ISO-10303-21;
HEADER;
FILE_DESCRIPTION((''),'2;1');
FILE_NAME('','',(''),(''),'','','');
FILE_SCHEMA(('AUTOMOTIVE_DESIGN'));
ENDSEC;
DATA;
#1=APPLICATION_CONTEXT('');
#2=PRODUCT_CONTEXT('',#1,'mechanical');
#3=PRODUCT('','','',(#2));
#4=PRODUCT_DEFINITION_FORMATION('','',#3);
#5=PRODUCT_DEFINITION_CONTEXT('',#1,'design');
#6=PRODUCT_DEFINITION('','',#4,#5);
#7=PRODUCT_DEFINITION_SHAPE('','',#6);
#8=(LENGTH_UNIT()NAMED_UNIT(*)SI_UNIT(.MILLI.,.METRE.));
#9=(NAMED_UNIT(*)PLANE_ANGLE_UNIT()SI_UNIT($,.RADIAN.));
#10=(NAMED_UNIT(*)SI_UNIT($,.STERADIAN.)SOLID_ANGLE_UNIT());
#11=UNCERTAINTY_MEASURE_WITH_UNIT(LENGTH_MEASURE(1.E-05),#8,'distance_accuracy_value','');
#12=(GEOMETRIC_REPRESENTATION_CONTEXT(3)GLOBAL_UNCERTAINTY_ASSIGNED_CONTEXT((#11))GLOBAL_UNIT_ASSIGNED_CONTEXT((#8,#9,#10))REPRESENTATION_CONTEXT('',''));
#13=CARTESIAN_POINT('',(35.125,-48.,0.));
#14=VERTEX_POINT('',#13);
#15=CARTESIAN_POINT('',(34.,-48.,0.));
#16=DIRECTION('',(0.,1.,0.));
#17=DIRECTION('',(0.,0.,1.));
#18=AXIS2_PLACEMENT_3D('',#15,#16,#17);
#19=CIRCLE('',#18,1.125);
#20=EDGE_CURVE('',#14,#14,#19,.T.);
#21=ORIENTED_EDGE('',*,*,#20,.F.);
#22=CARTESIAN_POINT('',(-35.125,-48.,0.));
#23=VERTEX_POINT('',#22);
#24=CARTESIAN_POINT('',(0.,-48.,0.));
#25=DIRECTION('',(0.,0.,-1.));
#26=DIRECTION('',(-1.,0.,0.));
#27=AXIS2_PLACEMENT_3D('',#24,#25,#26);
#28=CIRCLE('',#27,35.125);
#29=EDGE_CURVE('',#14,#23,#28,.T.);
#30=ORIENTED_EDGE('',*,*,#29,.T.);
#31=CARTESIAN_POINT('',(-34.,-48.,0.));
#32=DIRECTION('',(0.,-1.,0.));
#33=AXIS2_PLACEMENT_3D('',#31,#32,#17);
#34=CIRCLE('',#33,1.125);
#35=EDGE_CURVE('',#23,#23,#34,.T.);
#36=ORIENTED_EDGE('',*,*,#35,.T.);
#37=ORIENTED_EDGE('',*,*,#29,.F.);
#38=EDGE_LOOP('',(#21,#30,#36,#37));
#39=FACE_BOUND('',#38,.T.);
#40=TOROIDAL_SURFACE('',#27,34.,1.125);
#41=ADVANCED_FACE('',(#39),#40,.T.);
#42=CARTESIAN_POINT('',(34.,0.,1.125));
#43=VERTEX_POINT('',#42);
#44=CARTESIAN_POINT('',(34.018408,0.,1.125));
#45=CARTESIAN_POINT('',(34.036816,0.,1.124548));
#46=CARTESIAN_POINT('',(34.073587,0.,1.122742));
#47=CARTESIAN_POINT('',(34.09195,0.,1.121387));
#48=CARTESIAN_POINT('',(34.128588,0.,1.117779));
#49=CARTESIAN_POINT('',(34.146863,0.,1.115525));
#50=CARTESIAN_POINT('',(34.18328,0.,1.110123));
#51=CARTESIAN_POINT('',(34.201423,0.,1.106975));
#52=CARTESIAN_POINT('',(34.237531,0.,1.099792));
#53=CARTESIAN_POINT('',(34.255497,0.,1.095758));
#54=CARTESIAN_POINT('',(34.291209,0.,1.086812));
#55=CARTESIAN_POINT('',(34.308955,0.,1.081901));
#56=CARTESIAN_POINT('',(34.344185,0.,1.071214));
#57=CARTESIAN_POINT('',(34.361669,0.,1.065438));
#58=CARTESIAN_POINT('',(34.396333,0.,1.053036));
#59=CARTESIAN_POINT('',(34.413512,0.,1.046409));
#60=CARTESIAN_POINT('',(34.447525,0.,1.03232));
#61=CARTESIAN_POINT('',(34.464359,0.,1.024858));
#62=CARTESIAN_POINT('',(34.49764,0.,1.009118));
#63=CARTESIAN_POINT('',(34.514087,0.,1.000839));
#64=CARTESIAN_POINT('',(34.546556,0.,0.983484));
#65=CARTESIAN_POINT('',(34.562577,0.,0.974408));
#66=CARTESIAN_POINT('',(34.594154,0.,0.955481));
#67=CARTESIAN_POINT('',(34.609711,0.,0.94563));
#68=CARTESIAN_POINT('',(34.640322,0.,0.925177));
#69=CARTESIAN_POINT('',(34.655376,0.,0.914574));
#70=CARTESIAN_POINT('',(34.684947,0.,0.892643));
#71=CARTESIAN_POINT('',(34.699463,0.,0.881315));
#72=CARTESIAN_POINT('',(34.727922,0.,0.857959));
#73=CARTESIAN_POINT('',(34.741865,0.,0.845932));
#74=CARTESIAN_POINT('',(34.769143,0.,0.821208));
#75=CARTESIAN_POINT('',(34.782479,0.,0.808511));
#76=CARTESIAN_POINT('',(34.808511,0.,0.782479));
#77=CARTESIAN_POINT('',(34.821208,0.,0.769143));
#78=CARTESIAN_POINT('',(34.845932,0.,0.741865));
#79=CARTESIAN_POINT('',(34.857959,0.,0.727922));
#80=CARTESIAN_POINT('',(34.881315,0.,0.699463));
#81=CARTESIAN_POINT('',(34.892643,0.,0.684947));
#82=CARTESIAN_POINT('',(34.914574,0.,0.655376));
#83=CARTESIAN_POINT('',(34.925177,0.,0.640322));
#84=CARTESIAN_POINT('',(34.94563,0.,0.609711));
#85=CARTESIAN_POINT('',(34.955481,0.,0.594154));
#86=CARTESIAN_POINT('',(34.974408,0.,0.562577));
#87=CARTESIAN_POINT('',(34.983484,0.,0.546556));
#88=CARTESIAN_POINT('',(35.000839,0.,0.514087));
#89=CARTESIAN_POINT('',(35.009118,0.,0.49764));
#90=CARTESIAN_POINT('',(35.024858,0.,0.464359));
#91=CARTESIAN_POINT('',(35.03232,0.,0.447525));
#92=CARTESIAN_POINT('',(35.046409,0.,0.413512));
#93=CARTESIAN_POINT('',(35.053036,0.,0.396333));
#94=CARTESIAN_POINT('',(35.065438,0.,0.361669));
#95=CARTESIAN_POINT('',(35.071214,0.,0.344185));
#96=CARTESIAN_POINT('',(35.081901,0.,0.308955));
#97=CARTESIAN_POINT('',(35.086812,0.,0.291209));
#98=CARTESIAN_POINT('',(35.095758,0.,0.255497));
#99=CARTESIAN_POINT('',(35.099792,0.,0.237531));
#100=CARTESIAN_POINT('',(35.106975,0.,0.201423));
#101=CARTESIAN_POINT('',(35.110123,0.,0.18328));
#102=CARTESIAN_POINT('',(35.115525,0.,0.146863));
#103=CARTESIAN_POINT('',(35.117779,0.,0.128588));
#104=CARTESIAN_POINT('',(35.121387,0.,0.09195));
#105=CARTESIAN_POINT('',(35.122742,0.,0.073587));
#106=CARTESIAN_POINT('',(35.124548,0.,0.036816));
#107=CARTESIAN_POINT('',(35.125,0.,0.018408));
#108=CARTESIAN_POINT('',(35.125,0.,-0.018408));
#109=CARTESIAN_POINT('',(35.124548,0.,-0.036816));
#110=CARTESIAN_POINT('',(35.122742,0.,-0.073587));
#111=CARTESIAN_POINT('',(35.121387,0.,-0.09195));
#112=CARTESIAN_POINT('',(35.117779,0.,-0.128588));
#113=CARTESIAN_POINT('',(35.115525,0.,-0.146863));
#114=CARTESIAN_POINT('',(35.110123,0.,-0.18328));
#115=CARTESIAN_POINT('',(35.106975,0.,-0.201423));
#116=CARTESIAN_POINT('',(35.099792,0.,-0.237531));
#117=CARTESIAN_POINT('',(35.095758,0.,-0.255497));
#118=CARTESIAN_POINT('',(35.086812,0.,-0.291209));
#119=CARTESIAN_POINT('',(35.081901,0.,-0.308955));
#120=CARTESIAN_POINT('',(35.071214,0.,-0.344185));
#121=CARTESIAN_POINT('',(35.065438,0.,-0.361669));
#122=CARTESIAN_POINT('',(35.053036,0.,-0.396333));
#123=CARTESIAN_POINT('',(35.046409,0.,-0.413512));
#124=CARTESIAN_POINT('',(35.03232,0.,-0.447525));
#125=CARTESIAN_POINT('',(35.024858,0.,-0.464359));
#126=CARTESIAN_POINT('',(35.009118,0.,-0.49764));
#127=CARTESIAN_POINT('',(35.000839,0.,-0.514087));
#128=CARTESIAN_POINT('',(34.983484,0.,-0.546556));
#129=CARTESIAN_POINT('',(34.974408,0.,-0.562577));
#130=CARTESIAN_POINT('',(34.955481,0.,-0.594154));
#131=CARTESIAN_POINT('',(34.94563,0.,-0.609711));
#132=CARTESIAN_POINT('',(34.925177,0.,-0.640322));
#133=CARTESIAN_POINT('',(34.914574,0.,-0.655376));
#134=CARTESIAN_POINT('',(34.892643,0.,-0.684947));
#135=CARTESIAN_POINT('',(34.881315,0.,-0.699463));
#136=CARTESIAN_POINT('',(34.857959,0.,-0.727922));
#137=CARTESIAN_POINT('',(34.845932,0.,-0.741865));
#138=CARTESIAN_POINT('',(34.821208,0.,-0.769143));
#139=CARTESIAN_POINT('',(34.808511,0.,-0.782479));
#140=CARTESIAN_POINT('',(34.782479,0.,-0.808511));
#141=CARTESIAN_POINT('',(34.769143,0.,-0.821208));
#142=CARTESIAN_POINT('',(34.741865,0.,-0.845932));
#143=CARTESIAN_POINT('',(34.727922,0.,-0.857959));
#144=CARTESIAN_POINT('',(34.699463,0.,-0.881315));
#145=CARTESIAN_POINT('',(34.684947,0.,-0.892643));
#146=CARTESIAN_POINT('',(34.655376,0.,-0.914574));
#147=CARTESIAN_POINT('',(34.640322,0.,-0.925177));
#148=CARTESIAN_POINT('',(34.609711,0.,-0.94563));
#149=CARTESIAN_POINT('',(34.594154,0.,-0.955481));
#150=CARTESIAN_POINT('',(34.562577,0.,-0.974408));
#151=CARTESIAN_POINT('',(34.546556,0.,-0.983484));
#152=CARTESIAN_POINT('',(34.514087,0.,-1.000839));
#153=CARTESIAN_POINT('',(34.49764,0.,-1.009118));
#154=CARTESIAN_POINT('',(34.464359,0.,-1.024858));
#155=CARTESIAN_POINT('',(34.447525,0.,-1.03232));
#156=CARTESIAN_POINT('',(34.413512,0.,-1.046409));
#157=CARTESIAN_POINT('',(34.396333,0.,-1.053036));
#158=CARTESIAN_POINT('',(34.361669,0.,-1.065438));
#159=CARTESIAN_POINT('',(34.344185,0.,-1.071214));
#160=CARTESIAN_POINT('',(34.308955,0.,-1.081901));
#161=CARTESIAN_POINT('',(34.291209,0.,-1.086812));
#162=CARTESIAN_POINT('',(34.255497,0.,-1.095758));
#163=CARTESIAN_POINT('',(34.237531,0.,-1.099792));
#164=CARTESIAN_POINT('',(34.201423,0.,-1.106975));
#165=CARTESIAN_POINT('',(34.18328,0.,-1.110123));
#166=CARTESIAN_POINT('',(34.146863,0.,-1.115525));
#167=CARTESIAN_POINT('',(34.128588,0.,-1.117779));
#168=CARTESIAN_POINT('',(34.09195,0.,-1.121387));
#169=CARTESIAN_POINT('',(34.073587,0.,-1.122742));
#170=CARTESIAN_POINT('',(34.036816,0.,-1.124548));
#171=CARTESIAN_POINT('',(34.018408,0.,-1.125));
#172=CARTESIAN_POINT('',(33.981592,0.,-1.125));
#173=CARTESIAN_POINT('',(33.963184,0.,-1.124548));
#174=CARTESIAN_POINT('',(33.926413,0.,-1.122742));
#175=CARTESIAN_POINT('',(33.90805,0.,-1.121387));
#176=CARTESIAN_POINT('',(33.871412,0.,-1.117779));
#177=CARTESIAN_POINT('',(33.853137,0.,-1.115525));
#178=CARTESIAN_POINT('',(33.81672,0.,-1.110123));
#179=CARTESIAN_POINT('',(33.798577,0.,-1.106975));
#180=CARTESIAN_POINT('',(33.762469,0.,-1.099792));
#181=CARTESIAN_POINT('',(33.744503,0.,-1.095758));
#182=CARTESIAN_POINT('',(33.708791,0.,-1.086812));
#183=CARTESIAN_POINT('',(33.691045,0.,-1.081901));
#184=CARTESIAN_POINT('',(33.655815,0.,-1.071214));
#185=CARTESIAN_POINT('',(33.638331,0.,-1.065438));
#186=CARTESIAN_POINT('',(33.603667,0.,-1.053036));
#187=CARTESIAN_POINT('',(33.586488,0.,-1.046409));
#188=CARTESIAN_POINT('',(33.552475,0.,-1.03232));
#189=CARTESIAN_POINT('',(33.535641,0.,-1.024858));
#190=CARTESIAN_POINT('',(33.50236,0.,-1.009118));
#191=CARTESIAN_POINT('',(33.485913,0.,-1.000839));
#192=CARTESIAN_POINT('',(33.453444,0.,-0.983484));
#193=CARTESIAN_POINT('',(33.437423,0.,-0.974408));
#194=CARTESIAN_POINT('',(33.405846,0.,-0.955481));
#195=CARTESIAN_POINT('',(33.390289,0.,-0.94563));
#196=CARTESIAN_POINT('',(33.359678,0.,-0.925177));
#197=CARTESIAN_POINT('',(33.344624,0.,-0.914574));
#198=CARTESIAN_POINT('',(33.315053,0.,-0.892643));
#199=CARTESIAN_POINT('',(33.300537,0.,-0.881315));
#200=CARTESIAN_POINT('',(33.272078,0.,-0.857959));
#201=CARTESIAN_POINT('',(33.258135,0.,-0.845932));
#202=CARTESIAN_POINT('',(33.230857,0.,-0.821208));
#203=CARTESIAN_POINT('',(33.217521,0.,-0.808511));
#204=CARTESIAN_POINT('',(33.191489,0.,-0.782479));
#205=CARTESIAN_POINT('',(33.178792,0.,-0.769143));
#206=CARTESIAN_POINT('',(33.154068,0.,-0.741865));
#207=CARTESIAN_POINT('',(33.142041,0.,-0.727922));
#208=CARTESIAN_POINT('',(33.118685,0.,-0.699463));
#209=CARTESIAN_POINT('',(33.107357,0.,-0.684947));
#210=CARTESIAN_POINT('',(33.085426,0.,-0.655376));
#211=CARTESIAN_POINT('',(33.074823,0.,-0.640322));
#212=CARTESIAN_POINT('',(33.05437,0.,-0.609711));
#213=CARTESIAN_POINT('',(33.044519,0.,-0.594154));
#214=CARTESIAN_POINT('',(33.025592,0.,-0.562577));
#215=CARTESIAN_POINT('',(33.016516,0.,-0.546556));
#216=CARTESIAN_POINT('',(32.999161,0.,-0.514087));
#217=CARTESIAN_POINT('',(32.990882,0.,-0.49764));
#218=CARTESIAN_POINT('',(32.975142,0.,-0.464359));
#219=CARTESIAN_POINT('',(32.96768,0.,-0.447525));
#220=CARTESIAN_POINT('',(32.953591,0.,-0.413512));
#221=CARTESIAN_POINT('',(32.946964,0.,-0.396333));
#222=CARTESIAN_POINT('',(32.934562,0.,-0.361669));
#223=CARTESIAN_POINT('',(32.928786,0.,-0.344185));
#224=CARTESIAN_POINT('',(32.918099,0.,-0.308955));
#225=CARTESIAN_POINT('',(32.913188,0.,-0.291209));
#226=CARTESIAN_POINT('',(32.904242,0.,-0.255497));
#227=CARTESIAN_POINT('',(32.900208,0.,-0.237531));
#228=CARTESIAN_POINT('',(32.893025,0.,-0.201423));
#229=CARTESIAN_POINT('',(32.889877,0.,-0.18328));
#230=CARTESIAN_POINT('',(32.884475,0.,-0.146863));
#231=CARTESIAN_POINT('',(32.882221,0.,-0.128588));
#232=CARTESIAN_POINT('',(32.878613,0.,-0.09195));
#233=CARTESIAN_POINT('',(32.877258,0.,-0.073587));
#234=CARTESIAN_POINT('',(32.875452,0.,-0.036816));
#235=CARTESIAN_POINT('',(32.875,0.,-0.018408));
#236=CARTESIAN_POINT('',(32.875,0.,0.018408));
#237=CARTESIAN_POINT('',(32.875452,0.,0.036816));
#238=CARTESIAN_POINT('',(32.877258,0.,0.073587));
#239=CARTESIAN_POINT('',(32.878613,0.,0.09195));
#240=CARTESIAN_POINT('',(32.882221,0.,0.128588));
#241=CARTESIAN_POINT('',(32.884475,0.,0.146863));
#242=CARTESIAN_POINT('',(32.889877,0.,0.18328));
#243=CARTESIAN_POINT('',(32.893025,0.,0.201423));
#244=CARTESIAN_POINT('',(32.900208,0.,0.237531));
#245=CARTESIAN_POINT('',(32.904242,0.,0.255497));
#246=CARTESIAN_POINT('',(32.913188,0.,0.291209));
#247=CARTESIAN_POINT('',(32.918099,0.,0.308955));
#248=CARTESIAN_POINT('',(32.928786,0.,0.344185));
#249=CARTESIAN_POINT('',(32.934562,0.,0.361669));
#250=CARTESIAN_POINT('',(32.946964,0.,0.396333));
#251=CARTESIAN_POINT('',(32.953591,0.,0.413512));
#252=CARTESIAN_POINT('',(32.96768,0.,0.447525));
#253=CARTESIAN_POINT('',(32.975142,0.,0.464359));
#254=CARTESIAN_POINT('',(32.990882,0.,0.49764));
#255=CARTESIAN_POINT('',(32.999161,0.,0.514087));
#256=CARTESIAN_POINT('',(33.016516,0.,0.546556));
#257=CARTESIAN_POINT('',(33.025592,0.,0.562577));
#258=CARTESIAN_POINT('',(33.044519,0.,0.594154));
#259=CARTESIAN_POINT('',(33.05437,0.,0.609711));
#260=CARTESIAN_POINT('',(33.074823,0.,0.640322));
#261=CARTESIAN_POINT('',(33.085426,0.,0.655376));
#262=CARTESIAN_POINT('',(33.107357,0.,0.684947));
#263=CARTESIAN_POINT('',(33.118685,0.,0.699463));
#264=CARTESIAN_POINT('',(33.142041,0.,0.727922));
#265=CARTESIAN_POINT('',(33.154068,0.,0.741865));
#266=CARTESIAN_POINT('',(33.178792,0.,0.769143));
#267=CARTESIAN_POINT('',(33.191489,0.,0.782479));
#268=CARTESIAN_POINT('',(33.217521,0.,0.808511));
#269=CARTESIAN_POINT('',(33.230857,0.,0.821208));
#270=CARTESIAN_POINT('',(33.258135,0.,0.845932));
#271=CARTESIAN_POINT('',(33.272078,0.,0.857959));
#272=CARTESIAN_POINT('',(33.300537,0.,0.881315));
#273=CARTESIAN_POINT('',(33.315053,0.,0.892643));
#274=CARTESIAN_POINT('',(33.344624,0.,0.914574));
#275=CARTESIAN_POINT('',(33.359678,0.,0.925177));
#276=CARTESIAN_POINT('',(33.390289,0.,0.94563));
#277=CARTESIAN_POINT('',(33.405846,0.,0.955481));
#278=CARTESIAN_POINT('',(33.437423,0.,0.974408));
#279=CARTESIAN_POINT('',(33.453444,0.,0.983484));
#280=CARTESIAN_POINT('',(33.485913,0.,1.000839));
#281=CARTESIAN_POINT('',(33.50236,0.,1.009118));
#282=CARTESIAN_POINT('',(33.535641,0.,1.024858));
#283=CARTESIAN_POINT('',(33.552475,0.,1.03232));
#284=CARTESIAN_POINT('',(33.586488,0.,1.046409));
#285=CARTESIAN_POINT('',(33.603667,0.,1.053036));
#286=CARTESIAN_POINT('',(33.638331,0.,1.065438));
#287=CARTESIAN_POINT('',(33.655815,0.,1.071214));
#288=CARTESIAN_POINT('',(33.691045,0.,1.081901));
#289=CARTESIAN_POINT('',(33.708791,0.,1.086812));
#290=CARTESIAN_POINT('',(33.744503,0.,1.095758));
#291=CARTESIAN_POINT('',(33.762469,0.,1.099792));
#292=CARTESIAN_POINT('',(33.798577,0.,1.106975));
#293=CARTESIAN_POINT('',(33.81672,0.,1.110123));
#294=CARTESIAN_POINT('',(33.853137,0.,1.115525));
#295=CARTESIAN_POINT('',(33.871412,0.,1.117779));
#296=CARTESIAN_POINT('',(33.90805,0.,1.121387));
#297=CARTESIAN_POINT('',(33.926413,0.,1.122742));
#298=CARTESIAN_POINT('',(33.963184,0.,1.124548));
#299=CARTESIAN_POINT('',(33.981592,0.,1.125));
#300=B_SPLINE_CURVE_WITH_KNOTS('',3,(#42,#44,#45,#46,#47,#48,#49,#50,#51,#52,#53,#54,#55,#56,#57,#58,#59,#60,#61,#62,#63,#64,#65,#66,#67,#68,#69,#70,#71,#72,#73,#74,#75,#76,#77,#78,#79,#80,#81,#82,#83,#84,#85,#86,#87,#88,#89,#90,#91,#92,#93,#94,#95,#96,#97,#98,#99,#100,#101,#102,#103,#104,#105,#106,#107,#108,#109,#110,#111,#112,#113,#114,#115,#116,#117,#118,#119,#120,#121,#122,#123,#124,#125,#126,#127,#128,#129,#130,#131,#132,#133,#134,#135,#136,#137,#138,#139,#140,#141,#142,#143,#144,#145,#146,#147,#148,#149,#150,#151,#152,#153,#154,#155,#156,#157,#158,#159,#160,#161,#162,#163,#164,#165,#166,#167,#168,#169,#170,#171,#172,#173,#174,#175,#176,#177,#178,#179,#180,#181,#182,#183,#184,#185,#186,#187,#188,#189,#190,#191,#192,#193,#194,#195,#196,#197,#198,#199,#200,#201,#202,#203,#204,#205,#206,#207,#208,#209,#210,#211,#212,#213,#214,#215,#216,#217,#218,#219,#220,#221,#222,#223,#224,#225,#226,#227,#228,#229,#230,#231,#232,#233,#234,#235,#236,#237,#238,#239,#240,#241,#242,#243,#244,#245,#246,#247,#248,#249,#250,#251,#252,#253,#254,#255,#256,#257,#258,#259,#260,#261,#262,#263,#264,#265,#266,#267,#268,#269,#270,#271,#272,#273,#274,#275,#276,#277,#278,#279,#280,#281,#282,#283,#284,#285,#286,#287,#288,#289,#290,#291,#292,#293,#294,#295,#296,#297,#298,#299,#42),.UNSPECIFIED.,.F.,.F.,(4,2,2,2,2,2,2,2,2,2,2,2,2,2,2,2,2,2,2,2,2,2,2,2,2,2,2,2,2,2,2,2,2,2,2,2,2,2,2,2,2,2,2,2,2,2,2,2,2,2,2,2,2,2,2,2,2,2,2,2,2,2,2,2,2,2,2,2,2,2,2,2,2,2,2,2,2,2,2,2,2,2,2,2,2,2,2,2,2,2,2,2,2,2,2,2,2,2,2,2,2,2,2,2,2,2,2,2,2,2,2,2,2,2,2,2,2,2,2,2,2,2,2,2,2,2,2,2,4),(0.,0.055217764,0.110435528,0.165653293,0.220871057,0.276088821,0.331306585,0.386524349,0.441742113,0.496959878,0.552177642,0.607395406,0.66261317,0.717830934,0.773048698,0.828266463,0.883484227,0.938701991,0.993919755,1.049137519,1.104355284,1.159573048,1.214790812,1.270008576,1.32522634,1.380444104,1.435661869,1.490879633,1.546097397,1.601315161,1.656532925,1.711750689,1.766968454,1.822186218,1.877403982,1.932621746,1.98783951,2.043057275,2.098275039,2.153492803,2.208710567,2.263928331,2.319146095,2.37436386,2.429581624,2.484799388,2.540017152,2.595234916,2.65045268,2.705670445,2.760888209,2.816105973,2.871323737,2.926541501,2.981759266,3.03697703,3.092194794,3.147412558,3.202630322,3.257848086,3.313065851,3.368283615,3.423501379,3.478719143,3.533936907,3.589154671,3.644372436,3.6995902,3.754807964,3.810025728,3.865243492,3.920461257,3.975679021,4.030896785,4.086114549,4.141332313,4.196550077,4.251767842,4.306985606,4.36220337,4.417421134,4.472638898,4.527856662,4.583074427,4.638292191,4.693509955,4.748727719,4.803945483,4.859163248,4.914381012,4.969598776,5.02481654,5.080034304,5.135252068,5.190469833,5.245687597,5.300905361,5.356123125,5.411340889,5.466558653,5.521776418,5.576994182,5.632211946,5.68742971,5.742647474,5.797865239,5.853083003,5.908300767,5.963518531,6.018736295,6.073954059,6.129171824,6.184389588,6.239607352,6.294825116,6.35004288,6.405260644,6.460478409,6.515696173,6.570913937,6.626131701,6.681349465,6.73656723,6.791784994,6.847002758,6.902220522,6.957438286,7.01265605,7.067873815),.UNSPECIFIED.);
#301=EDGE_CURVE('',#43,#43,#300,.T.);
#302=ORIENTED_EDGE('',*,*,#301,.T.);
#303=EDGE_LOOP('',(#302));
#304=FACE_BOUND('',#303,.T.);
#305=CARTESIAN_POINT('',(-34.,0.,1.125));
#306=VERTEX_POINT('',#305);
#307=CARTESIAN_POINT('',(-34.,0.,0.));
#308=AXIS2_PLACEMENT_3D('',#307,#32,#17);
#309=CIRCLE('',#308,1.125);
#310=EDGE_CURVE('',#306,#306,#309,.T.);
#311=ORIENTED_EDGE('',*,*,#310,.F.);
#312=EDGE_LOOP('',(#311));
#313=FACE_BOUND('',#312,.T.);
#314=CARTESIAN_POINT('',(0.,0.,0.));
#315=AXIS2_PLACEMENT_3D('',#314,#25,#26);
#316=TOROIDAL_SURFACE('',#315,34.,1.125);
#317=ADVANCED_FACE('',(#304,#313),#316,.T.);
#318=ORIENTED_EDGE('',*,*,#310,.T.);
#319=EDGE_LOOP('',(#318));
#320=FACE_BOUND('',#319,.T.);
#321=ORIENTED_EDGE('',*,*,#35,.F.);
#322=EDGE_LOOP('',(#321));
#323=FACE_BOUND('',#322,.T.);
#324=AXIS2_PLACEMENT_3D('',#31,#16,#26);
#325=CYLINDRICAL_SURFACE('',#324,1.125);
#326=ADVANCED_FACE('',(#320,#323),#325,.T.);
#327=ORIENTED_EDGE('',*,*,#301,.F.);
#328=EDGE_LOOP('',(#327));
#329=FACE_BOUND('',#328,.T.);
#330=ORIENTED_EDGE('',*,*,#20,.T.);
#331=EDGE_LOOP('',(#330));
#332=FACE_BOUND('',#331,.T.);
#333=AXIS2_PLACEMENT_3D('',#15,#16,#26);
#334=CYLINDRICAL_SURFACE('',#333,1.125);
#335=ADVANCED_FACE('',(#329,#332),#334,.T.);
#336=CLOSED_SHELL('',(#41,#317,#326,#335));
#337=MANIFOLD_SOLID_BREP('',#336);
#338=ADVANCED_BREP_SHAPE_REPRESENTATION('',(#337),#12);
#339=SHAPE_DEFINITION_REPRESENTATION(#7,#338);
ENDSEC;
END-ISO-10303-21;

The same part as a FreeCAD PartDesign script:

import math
import FreeCAD as App
import Part
import Sketcher

V = App.Vector

doc = App.newDocument("Part")
body = doc.addObject("PartDesign::Body", "Body")

sketch1 = doc.addObject("Sketcher::SketchObject", "Sketch")
body.addObject(sketch1)
sketch1.AttachmentSupport = (doc.XZ_Plane, [""])
sketch1.MapMode = "FlatFace"
sketch1.addGeometry(Part.Circle(V(34, 0, 0), V(0, 0, 1), 1.1), False)
sketch1.addConstraint([
    Sketcher.Constraint("PointOnObject", 0, 3, -1),
    Sketcher.Constraint("Diameter", 0, 2.25),
    Sketcher.Constraint("DistanceX", -1, 1, 0, 3, 34.0),
])

sketch2 = doc.addObject("Sketcher::SketchObject", "Sketch001")
body.addObject(sketch2)
sketch2.AttachmentSupport = (doc.XY_Plane, [""])
sketch2.MapMode = "FlatFace"
sketch2.addGeometry([
    Part.LineSegment(V(-34, 0, 0), V(-34, -48, 0)),
    Part.ArcOfCircle(Part.Circle(V(0, -48, 0), V(0, 0, 1), 34), math.radians(180), math.radians(360)),
    Part.LineSegment(V(34, -48, 0), V(34, 0, 0)),
    Part.ArcOfCircle(Part.Circle(V(0, 0, 0), V(0, 0, 1), 34), math.radians(0), math.radians(180)),
], False)
sketch2.addConstraint([
    Sketcher.Constraint("Tangent", 0, 2, 1, 1),
    Sketcher.Constraint("Tangent", 1, 2, 2, 1),
    Sketcher.Constraint("Tangent", 2, 2, 3, 1),
    Sketcher.Constraint("Tangent", 3, 2, 0, 1),
    Sketcher.Constraint("Vertical", 0),
    Sketcher.Constraint("Vertical", 2),
    Sketcher.Constraint("Coincident", 3, 3, -1, 1),
    Sketcher.Constraint("Radius", 1, 34.0),
    Sketcher.Constraint("DistanceY", 0, 2, 0, 1, 48.0),
])
doc.recompute()

additivepipe = doc.addObject("PartDesign::AdditivePipe", "AdditivePipe")
body.addObject(additivepipe)
additivepipe.Profile = sketch1
additivepipe.Spine = (sketch2, ["Edge1", "Edge2", "Edge3", "Edge4"])

doc.recompute()
